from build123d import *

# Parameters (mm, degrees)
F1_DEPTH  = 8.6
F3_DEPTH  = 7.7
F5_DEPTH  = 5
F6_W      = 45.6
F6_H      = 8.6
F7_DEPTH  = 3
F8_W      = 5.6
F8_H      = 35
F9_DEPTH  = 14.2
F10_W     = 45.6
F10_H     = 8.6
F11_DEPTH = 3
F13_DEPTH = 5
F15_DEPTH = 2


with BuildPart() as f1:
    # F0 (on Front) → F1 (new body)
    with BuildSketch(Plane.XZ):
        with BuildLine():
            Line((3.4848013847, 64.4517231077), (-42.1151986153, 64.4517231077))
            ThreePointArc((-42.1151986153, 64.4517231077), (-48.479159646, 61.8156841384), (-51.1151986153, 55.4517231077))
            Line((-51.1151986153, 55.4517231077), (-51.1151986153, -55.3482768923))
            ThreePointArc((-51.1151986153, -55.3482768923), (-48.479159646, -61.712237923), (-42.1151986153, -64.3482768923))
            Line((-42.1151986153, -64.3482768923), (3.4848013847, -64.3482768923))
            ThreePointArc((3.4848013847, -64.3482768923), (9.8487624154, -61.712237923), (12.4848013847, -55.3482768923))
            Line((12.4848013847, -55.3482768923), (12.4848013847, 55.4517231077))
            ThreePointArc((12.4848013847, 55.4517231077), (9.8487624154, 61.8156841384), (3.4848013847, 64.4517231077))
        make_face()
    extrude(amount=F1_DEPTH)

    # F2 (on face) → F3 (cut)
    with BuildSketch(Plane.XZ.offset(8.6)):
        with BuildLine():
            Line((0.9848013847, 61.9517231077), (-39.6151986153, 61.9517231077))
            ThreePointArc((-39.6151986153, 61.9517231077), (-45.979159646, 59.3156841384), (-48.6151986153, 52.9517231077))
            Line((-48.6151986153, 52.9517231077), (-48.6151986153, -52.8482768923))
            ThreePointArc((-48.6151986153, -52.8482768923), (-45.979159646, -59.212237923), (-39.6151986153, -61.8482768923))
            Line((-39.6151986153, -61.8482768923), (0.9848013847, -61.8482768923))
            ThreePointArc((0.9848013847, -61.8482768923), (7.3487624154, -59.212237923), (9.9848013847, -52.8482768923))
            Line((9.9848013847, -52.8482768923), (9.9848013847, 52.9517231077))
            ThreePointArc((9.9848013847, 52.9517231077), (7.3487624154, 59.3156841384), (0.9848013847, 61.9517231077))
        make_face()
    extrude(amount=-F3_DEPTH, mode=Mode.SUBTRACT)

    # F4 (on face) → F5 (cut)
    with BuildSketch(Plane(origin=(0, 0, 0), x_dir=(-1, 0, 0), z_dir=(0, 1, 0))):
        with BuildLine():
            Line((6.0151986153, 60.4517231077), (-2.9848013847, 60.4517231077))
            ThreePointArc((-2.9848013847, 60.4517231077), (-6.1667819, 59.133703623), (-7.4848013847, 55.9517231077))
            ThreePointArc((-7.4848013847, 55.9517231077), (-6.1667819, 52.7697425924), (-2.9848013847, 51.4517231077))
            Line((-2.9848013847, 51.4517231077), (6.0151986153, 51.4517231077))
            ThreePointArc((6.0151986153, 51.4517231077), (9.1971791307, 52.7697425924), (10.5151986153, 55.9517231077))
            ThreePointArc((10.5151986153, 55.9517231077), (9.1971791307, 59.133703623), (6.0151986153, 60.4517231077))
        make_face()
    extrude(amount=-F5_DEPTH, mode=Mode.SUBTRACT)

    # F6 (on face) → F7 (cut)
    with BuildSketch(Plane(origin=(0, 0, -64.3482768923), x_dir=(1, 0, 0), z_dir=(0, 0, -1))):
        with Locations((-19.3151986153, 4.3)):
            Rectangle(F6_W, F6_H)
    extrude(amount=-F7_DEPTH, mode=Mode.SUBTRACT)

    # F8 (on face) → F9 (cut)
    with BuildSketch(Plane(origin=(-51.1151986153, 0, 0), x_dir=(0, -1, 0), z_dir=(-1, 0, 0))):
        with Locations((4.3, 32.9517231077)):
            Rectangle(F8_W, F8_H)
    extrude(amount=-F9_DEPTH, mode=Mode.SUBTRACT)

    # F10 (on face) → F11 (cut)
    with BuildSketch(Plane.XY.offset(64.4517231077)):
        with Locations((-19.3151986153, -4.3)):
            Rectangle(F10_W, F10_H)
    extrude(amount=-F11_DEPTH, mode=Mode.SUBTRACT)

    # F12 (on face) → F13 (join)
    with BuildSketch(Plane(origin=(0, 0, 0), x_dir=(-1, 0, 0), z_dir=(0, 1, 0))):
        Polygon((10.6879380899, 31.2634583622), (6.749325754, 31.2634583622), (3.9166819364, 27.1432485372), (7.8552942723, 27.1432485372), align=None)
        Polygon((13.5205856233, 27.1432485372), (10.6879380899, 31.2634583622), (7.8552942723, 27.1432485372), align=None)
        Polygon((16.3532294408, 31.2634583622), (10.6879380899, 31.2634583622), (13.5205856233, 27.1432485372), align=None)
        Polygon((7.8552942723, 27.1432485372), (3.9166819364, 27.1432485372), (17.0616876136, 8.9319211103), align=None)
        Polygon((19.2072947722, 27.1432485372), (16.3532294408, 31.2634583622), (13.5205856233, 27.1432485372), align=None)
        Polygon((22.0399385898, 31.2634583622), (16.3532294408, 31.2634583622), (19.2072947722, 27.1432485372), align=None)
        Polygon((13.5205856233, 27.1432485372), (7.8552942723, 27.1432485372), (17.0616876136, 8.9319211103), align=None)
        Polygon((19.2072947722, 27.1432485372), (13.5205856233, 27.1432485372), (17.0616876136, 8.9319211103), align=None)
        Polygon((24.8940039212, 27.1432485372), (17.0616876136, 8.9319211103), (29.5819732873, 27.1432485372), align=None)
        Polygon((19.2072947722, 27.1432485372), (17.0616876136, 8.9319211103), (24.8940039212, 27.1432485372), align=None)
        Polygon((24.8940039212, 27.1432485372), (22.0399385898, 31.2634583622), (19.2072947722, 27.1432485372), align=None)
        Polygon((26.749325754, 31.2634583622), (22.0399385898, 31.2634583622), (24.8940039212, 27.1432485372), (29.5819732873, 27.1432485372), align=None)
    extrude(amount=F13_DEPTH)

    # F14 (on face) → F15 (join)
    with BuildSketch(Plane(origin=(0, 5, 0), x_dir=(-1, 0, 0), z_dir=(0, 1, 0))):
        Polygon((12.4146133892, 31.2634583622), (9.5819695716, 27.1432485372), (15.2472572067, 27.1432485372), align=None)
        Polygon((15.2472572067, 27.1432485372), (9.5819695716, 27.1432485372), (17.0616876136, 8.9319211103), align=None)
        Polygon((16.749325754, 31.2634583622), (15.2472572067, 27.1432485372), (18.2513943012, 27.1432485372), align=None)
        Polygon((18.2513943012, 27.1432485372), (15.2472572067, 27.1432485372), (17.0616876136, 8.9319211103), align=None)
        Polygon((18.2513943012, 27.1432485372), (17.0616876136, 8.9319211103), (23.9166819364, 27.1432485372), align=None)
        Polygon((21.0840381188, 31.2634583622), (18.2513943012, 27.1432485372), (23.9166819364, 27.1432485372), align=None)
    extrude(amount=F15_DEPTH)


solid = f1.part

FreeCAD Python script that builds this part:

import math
import FreeCAD as App
import Part
import Sketcher
from FreeCAD import Vector
Q = App.Units.Quantity


def add_polygon(sketch, points):
    """Adds a closed chain of lines whose ends are joined by coincident constraints."""
    first, n = sketch.GeometryCount, len(points)
    for a, b in zip(points, points[1:] + points[:1]):
        sketch.addGeometry(Part.LineSegment(App.Vector(*a, 0), App.Vector(*b, 0)), False)
    for i in range(n):
        sketch.addConstraint(Sketcher.Constraint("Coincident", first + i, 2, first + (i + 1) % n, 1))

doc = App.newDocument("Part")
body = doc.addObject("PartDesign::Body", "Body")

sketch1 = body.newObject("Sketcher::SketchObject", "Sketch")
sketch1.AttachmentSupport = (doc.getObject("XZ_Plane"), [""])
sketch1.MapMode = "FlatFace"
sketch1.addGeometry(Part.LineSegment(Vector(3, 64, 0), Vector(-42, 64, 0)), False)
sketch1.addGeometry(Part.ArcOfCircle(Part.Circle(Vector(-42, 55, 0), Vector(0, 0, 1), 9), math.radians(90), math.radians(180)), False)
sketch1.addGeometry(Part.LineSegment(Vector(-51, 55, 0), Vector(-51, -55, 0)), False)
sketch1.addGeometry(Part.ArcOfCircle(Part.Circle(Vector(-42, -55, 0), Vector(0, 0, 1), 9), math.radians(180), math.radians(270)), False)
sketch1.addGeometry(Part.LineSegment(Vector(-42, -64, 0), Vector(3, -64, 0)), False)
sketch1.addGeometry(Part.ArcOfCircle(Part.Circle(Vector(3, -55, 0), Vector(0, 0, 1), 9), math.radians(-90), math.radians(0)), False)
sketch1.addGeometry(Part.LineSegment(Vector(12, -55, 0), Vector(12, 55, 0)), False)
sketch1.addGeometry(Part.ArcOfCircle(Part.Circle(Vector(3, 55, 0), Vector(0, 0, 1), 9), math.radians(0), math.radians(90)), False)
sketch1.addConstraint(Sketcher.Constraint("Tangent", 0, 2, 1, 1))
sketch1.addConstraint(Sketcher.Constraint("Tangent", 1, 2, 2, 1))
sketch1.addConstraint(Sketcher.Constraint("Tangent", 2, 2, 3, 1))
sketch1.addConstraint(Sketcher.Constraint("Tangent", 3, 2, 4, 1))
sketch1.addConstraint(Sketcher.Constraint("Tangent", 4, 2, 5, 1))
sketch1.addConstraint(Sketcher.Constraint("Tangent", 5, 2, 6, 1))
sketch1.addConstraint(Sketcher.Constraint("Tangent", 6, 2, 7, 1))
sketch1.addConstraint(Sketcher.Constraint("Tangent", 7, 2, 0, 1))
sketch1.addConstraint(Sketcher.Constraint("Horizontal", 0))
sketch1.addConstraint(Sketcher.Constraint("Vertical", 2))
sketch1.addConstraint(Sketcher.Constraint("Horizontal", 4))
sketch1.addConstraint(Sketcher.Constraint("Vertical", 6))
sketch1.addConstraint(Sketcher.Constraint("Equal", 1, 3))
sketch1.addConstraint(Sketcher.Constraint("Equal", 3, 5))
sketch1.addConstraint(Sketcher.Constraint("Equal", 5, 7))
sketch1.addConstraint(Sketcher.Constraint("Radius", 1, Q("9 mm")))
sketch1.addConstraint(Sketcher.Constraint("DistanceX", 0, 2, 0, 1, Q("45.6 mm")))
sketch1.addConstraint(Sketcher.Constraint("DistanceY", 2, 2, 2, 1, Q("110.8 mm")))
sketch1.addConstraint(Sketcher.Constraint("DistanceX", 1, 3, -1, 1, Q("42.115199 mm")))
sketch1.addConstraint(Sketcher.Constraint("DistanceY", -1, 1, 1, 3, Q("55.451723 mm")))
pad1 = body.newObject("PartDesign::Pad", "Pad")
pad1.Profile = sketch1
pad1.Length = 8.6

sketch2 = body.newObject("Sketcher::SketchObject", "Sketch001")
sketch2.AttachmentSupport = (doc.getObject("XZ_Plane"), [""])
sketch2.MapMode = "FlatFace"
sketch2.AttachmentOffset = App.Placement(Vector(0, 0, 8.6), App.Rotation())
sketch2.addGeometry(Part.LineSegment(Vector(1, 62, 0), Vector(-40, 62, 0)), False)
sketch2.addGeometry(Part.ArcOfCircle(Part.Circle(Vector(-40, 53, 0), Vector(0, 0, 1), 9), math.radians(90), math.radians(180)), False)
sketch2.addGeometry(Part.LineSegment(Vector(-49, 53, 0), Vector(-49, -53, 0)), False)
sketch2.addGeometry(Part.ArcOfCircle(Part.Circle(Vector(-40, -53, 0), Vector(0, 0, 1), 9), math.radians(180), math.radians(270)), False)
sketch2.addGeometry(Part.LineSegment(Vector(-40, -62, 0), Vector(1, -62, 0)), False)
sketch2.addGeometry(Part.ArcOfCircle(Part.Circle(Vector(1, -53, 0), Vector(0, 0, 1), 9), math.radians(-90), math.radians(0)), False)
sketch2.addGeometry(Part.LineSegment(Vector(10, -53, 0), Vector(10, 53, 0)), False)
sketch2.addGeometry(Part.ArcOfCircle(Part.Circle(Vector(1, 53, 0), Vector(0, 0, 1), 9), math.radians(0), math.radians(90)), False)
sketch2.addConstraint(Sketcher.Constraint("Tangent", 0, 2, 1, 1))
sketch2.addConstraint(Sketcher.Constraint("Tangent", 1, 2, 2, 1))
sketch2.addConstraint(Sketcher.Constraint("Tangent", 2, 2, 3, 1))
sketch2.addConstraint(Sketcher.Constraint("Tangent", 3, 2, 4, 1))
sketch2.addConstraint(Sketcher.Constraint("Tangent", 4, 2, 5, 1))
sketch2.addConstraint(Sketcher.Constraint("Tangent", 5, 2, 6, 1))
sketch2.addConstraint(Sketcher.Constraint("Tangent", 6, 2, 7, 1))
sketch2.addConstraint(Sketcher.Constraint("Tangent", 7, 2, 0, 1))
sketch2.addConstraint(Sketcher.Constraint("Horizontal", 0))
sketch2.addConstraint(Sketcher.Constraint("Vertical", 2))
sketch2.addConstraint(Sketcher.Constraint("Horizontal", 4))
sketch2.addConstraint(Sketcher.Constraint("Vertical", 6))
sketch2.addConstraint(Sketcher.Constraint("Equal", 1, 3))
sketch2.addConstraint(Sketcher.Constraint("Equal", 3, 5))
sketch2.addConstraint(Sketcher.Constraint("Equal", 5, 7))
sketch2.addConstraint(Sketcher.Constraint("Radius", 1, Q("9 mm")))
sketch2.addConstraint(Sketcher.Constraint("DistanceX", 0, 2, 0, 1, Q("40.6 mm")))
sketch2.addConstraint(Sketcher.Constraint("DistanceY", 2, 2, 2, 1, Q("105.8 mm")))
sketch2.addConstraint(Sketcher.Constraint("DistanceX", 1, 3, -1, 1, Q("39.615199 mm")))
sketch2.addConstraint(Sketcher.Constraint("DistanceY", -1, 1, 1, 3, Q("52.951723 mm")))
pocket1 = body.newObject("PartDesign::Pocket", "Pocket")
pocket1.Profile = sketch2
pocket1.Length = 7.7

sketch3 = body.newObject("Sketcher::SketchObject", "Sketch002")
sketch3.AttachmentSupport = (doc.getObject("XZ_Plane"), [""])
sketch3.MapMode = "FlatFace"
sketch3.addGeometry(Part.LineSegment(Vector(-6, 60.5, 0), Vector(3, 60.5, 0)), False)
sketch3.addGeometry(Part.ArcOfCircle(Part.Circle(Vector(3, 56, 0), Vector(0, 0, 1), 4.5), math.radians(0), math.radians(90)), False)
sketch3.addGeometry(Part.ArcOfCircle(Part.Circle(Vector(3, 56, 0), Vector(0, 0, 1), 4.5), math.radians(-90), math.radians(0)), False)
sketch3.addGeometry(Part.LineSegment(Vector(3, 51.5, 0), Vector(-6, 51.5, 0)), False)
sketch3.addGeometry(Part.ArcOfCircle(Part.Circle(Vector(-6, 56, 0), Vector(0, 0, 1), 4.5), math.radians(180), math.radians(270)), False)
sketch3.addGeometry(Part.ArcOfCircle(Part.Circle(Vector(-6, 56, 0), Vector(0, 0, 1), 4.5), math.radians(90), math.radians(180)), False)
sketch3.addConstraint(Sketcher.Constraint("Tangent", 0, 2, 1, 2))
sketch3.addConstraint(Sketcher.Constraint("Tangent", 1, 1, 2, 2))
sketch3.addConstraint(Sketcher.Constraint("Tangent", 2, 1, 3, 1))
sketch3.addConstraint(Sketcher.Constraint("Tangent", 3, 2, 4, 2))
sketch3.addConstraint(Sketcher.Constraint("Tangent", 4, 1, 5, 2))
sketch3.addConstraint(Sketcher.Constraint("Tangent", 5, 1, 0, 1))
sketch3.addConstraint(Sketcher.Constraint("Horizontal", 0))
sketch3.addConstraint(Sketcher.Constraint("Horizontal", 3))
sketch3.addConstraint(Sketcher.Constraint("Equal", 1, 2))
sketch3.addConstraint(Sketcher.Constraint("Equal", 2, 4))
sketch3.addConstraint(Sketcher.Constraint("Horizontal", 5, 3, 1, 1))
sketch3.addConstraint(Sketcher.Constraint("Horizontal", 1, 1, 4, 1))
sketch3.addConstraint(Sketcher.Constraint("Radius", 1, Q("4.5 mm")))
sketch3.addConstraint(Sketcher.Constraint("DistanceX", 0, 1, 0, 2, Q("9 mm")))
sketch3.addConstraint(Sketcher.Constraint("DistanceX", -1, 1, 1, 3, Q("2.984801 mm")))
sketch3.addConstraint(Sketcher.Constraint("DistanceY", -1, 1, 1, 3, Q("55.951723 mm")))
pocket2 = body.newObject("PartDesign::Pocket", "Pocket001")
pocket2.Profile = sketch3
pocket2.Length = 5
pocket2.Reversed = True

sketch4 = body.newObject("Sketcher::SketchObject", "Sketch003")
sketch4.AttachmentSupport = (doc.getObject("XY_Plane"), [""])
sketch4.MapMode = "FlatFace"
sketch4.AttachmentOffset = App.Placement(Vector(0, 0, -64.348277), App.Rotation())
add_polygon(sketch4, [(-42, -9), (-42, 0), (3, 0), (3, -9)])
sketch4.addConstraint(Sketcher.Constraint("Vertical", 0))
sketch4.addConstraint(Sketcher.Constraint("Horizontal", 1))
sketch4.addConstraint(Sketcher.Constraint("Vertical", 2))
sketch4.addConstraint(Sketcher.Constraint("Horizontal", 3))
sketch4.addConstraint(Sketcher.Constraint("PointOnObject", 0, 2, -1))
sketch4.addConstraint(Sketcher.Constraint("DistanceX", 1, 1, 1, 2, Q("45.6 mm")))
sketch4.addConstraint(Sketcher.Constraint("DistanceY", 0, 1, 0, 2, Q("8.6 mm")))
sketch4.addConstraint(Sketcher.Constraint("DistanceX", 0, 2, -1, 1, Q("42.115199 mm")))
pocket3 = body.newObject("PartDesign::Pocket", "Pocket002")
pocket3.Profile = sketch4
pocket3.Length = 3
pocket3.Reversed = True

sketch5 = body.newObject("Sketcher::SketchObject", "Sketch004")
sketch5.AttachmentSupport = (doc.getObject("YZ_Plane"), [""])
sketch5.MapMode = "FlatFace"
sketch5.AttachmentOffset = App.Placement(Vector(0, 0, -51.115199), App.Rotation())
add_polygon(sketch5, [(-2, 50), (-2, 15), (-7, 15), (-7, 50)])
sketch5.addConstraint(Sketcher.Constraint("Vertical", 0))
sketch5.addConstraint(Sketcher.Constraint("Horizontal", 1))
sketch5.addConstraint(Sketcher.Constraint("Vertical", 2))
sketch5.addConstraint(Sketcher.Constraint("Horizontal", 3))
sketch5.addConstraint(Sketcher.Constraint("DistanceY", 0, 2, 0, 1, Q("35 mm")))
sketch5.addConstraint(Sketcher.Constraint("DistanceX", 1, 2, 1, 1, Q("5.6 mm")))
sketch5.addConstraint(Sketcher.Constraint("DistanceX", 0, 2, -1, 1, Q("1.5 mm")))
sketch5.addConstraint(Sketcher.Constraint("DistanceY", -1, 1, 0, 2, Q("15.451723 mm")))
pocket4 = body.newObject("PartDesign::Pocket", "Pocket003")
pocket4.Profile = sketch5
pocket4.Length = 14.2
pocket4.Reversed = True

sketch6 = body.newObject("Sketcher::SketchObject", "Sketch005")
sketch6.AttachmentSupport = (doc.getObject("XY_Plane"), [""])
sketch6.MapMode = "FlatFace"
sketch6.AttachmentOffset = App.Placement(Vector(0, 0, 64.451723), App.Rotation())
add_polygon(sketch6, [(-42, 0), (-42, -9), (3, -9), (3, 0)])
sketch6.addConstraint(Sketcher.Constraint("Vertical", 0))
sketch6.addConstraint(Sketcher.Constraint("Horizontal", 1))
sketch6.addConstraint(Sketcher.Constraint("Vertical", 2))
sketch6.addConstraint(Sketcher.Constraint("Horizontal", 3))
sketch6.addConstraint(Sketcher.Constraint("PointOnObject", 2, 2, -1))
sketch6.addConstraint(Sketcher.Constraint("DistanceX", 1, 1, 1, 2, Q("45.6 mm")))
sketch6.addConstraint(Sketcher.Constraint("DistanceY", 0, 2, 0, 1, Q("8.6 mm")))
sketch6.addConstraint(Sketcher.Constraint("DistanceX", 0, 2, -1, 1, Q("42.115199 mm")))
pocket5 = body.newObject("PartDesign::Pocket", "Pocket004")
pocket5.Profile = sketch6
pocket5.Length = 3

sketch7 = body.newObject("Sketcher::SketchObject", "Sketch006")
sketch7.AttachmentSupport = (doc.getObject("XZ_Plane"), [""])
sketch7.MapMode = "FlatFace"
add_polygon(sketch7, [(-7, 31), (-4, 27), (-17, 9), (-30, 27), (-27, 31)])
sketch7.addConstraint(Sketcher.Constraint("Horizontal", 4))
sketch7.addConstraint(Sketcher.Constraint("Parallel", 0, 2))
sketch7.addConstraint(Sketcher.Constraint("Horizontal", 0, 2, 2, 2))
sketch7.addConstraint(Sketcher.Constraint("DistanceX", 4, 1, 4, 2, Q("20 mm")))
sketch7.addConstraint(Sketcher.Constraint("Distance", 0, Q("5 mm")))
sketch7.addConstraint(Sketcher.Constraint("Distance", 2, Q("22.1 mm")))
sketch7.addConstraint(Sketcher.Constraint("DistanceX", 0, 2, -1, 1, Q("3.916682 mm")))
sketch7.addConstraint(Sketcher.Constraint("DistanceY", -1, 1, 0, 2, Q("27.143249 mm")))
sketch7.addConstraint(Sketcher.Constraint("DistanceY", -1, 1, 1, 2, Q("8.931921 mm")))
sketch7.addConstraint(Sketcher.Constraint("DistanceX", 2, 2, 0, 2, Q("25.665291 mm")))
pad2 = body.newObject("PartDesign::Pad", "Pad001")
pad2.Profile = sketch7
pad2.Length = 5
pad2.Reversed = True

sketch8 = body.newObject("Sketcher::SketchObject", "Sketch007")
sketch8.AttachmentSupport = (doc.getObject("XZ_Plane"), [""])
sketch8.MapMode = "FlatFace"
sketch8.AttachmentOffset = App.Placement(Vector(0, 0, -5), App.Rotation())
add_polygon(sketch8, [(-12.4, 31.3), (-9.6, 27.1), (-17.1, 8.9), (-23.9, 27.1), (-21.1, 31.3), (-18.3, 27.1), (-16.7, 31.3), (-15.2, 27.1)])
sketch8.addConstraint(Sketcher.Constraint("Parallel", 0, 4))
sketch8.addConstraint(Sketcher.Constraint("Parallel", 3, 7))
sketch8.addConstraint(Sketcher.Constraint("Horizontal", 0, 2, 2, 2))
sketch8.addConstraint(Sketcher.Constraint("Horizontal", 2, 2, 4, 2))
sketch8.addConstraint(Sketcher.Constraint("Horizontal", 3, 2, 5, 2))
sketch8.addConstraint(Sketcher.Constraint("Horizontal", 4, 2, 6, 2))
sketch8.addConstraint(Sketcher.Constraint("Horizontal", 5, 2, 7, 2))
sketch8.addConstraint(Sketcher.Constraint("Equal", 0, 3))
sketch8.addConstraint(Sketcher.Constraint("Equal", 5, 6))
sketch8.addConstraint(Sketcher.Constraint("Distance", 0, Q("5 mm")))
sketch8.addConstraint(Sketcher.Constraint("Distance", 2, Q("19.458761 mm")))
sketch8.addConstraint(Sketcher.Constraint("Distance", 5, Q("4.385469 mm")))
sketch8.addConstraint(Sketcher.Constraint("DistanceX", 0, 2, -1, 1, Q("9.58197 mm")))
sketch8.addConstraint(Sketcher.Constraint("DistanceY", -1, 1, 0, 2, Q("27.143249 mm")))
sketch8.addConstraint(Sketcher.Constraint("DistanceY", -1, 1, 1, 2, Q("8.931921 mm")))
sketch8.addConstraint(Sketcher.Constraint("DistanceX", 2, 2, -1, 1, Q("23.916682 mm")))
pad3 = body.newObject("PartDesign::Pad", "Pad002")
pad3.Profile = sketch8
pad3.Length = 2
pad3.Reversed = True

doc.recompute()
